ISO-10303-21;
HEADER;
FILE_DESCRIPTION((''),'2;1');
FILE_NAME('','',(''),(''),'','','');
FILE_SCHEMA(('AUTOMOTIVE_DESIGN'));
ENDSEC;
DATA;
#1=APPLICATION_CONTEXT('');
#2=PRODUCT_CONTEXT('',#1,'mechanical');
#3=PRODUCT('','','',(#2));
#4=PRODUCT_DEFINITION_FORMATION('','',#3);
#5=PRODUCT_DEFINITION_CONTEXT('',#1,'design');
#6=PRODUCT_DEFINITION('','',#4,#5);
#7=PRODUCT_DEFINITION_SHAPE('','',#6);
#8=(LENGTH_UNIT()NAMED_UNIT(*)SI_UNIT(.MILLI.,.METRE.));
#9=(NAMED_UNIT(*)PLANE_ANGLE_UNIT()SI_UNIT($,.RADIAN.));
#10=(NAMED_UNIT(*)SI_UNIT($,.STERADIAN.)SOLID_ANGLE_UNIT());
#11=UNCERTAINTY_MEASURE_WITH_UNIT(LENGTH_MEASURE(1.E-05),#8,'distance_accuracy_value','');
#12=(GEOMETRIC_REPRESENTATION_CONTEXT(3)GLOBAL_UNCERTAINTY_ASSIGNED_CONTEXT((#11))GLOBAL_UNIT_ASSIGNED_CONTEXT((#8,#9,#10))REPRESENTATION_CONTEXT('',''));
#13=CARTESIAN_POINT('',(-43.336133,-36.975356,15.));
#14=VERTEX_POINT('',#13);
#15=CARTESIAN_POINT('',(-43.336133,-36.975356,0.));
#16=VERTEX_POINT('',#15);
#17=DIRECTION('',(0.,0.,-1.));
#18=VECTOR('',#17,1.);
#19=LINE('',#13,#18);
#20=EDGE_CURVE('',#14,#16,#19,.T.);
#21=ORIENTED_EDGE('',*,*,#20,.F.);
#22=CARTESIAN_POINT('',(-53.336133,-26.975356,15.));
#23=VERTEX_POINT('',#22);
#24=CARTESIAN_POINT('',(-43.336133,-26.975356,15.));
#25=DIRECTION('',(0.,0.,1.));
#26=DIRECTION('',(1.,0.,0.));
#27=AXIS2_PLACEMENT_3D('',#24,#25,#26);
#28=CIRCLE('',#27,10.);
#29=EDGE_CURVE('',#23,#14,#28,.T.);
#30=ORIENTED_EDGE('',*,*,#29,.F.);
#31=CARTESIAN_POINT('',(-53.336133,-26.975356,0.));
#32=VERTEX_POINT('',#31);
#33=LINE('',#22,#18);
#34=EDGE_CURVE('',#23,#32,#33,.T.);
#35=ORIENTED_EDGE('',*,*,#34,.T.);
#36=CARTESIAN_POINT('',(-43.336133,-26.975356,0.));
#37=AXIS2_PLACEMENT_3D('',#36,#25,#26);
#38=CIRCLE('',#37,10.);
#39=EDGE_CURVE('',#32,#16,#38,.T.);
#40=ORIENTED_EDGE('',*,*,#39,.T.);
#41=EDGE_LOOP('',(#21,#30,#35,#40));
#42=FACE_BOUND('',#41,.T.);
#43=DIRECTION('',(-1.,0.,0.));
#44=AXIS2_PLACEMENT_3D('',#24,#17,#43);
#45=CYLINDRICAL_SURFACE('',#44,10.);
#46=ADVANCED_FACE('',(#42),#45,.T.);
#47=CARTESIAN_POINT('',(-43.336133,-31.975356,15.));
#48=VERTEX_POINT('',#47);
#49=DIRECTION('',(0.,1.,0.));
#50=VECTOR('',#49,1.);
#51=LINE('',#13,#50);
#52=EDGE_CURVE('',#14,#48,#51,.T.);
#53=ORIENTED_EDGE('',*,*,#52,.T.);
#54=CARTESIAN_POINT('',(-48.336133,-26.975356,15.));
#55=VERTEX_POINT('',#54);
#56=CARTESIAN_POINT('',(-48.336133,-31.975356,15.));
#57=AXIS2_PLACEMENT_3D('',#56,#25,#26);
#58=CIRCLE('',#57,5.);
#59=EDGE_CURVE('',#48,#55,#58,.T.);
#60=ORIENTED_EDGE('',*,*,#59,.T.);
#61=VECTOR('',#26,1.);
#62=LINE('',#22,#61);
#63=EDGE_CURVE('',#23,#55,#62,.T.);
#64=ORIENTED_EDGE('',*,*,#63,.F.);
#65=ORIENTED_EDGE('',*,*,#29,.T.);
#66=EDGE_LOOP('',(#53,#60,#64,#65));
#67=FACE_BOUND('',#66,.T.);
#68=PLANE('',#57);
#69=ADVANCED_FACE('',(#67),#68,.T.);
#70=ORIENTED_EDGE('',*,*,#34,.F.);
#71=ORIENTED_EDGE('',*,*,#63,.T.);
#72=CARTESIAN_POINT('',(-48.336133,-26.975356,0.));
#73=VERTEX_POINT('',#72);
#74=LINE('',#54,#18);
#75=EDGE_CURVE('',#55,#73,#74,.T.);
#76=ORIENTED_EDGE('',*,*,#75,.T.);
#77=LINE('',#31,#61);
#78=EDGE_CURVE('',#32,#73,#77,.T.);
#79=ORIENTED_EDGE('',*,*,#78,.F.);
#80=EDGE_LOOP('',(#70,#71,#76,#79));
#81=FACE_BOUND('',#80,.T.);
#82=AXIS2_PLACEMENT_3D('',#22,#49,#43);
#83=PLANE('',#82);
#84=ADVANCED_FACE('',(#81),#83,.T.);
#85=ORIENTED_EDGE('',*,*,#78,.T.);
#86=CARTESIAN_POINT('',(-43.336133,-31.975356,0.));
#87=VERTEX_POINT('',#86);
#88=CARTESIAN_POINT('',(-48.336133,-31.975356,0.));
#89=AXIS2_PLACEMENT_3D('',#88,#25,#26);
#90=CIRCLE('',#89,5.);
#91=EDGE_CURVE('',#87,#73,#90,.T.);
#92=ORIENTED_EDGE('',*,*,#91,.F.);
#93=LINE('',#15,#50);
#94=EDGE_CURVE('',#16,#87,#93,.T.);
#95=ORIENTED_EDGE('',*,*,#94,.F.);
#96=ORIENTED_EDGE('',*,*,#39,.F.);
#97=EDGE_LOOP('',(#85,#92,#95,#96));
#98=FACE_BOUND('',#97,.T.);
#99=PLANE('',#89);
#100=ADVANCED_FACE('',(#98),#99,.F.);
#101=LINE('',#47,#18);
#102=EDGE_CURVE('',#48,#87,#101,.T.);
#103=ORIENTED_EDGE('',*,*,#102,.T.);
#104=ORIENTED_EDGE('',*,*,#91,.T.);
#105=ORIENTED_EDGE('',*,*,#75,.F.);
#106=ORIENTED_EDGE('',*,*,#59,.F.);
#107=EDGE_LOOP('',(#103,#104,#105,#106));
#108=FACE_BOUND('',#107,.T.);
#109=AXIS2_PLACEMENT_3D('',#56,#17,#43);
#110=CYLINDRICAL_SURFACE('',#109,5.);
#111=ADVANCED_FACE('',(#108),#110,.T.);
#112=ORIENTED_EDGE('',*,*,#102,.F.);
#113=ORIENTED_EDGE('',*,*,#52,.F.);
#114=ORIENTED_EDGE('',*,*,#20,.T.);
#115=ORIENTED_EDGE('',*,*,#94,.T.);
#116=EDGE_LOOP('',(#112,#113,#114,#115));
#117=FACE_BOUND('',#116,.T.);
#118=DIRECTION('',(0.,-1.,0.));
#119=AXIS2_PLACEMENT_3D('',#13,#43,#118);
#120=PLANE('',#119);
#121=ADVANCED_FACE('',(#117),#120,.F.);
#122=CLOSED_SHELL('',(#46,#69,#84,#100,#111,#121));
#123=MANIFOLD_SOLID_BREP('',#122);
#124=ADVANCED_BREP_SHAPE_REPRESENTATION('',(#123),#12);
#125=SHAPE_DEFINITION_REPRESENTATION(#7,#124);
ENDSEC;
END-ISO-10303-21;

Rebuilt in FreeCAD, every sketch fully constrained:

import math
import FreeCAD as App
import Part
import Sketcher
Q = App.Units.Quantity

doc = App.newDocument("Part")
body = doc.addObject("PartDesign::Body", "Body")

# Sketch on XY plane
sketch1 = body.newObject("Sketcher::SketchObject", "Sketch")
sketch1.AttachmentSupport = (doc.getObject("XY_Plane"), [""])
sketch1.MapMode = "FlatFace"
sketch1.addGeometry([
    Part.LineSegment(App.Vector(-43.336133, -36.975356, 0), App.Vector(-43.336133, -31.975356, 0)),
    Part.ArcOfCircle(Part.Circle(App.Vector(-48.336133, -31.975356, 0), App.Vector(0, 0, 1), 5), math.radians(0), math.radians(90)),
    Part.LineSegment(App.Vector(-48.336133, -26.975356, 0), App.Vector(-53.336133, -26.975356, 0)),
    Part.ArcOfCircle(Part.Circle(App.Vector(-43.336133, -26.975356, 0), App.Vector(0, 0, 1), 10), math.radians(180), math.radians(270)),
], False)
sketch1.addConstraint([
    Sketcher.Constraint("Tangent", 0, 2, 1, 1),
    Sketcher.Constraint("Tangent", 1, 2, 2, 1),
    Sketcher.Constraint("Coincident", 2, 2, 3, 1),
    Sketcher.Constraint("Coincident", 3, 2, 0, 1),
    Sketcher.Constraint("Vertical", 0),
    Sketcher.Constraint("Horizontal", 2),
    Sketcher.Constraint("Horizontal", 3, 3, 1, 2),
    Sketcher.Constraint("Vertical", 3, 3, 0, 2),
    Sketcher.Constraint("Radius", 1, Q("5 mm")),
    Sketcher.Constraint("Radius", 3, Q("10 mm")),
    Sketcher.Constraint("DistanceX", 1, 3, -1, 1, Q("48.336133 mm")),
    Sketcher.Constraint("DistanceY", 1, 3, -1, 1, Q("31.975356 mm")),
])
pad1 = body.newObject("PartDesign::Pad", "Pad")
pad1.Profile = sketch1
pad1.Length = 15

doc.recompute()
